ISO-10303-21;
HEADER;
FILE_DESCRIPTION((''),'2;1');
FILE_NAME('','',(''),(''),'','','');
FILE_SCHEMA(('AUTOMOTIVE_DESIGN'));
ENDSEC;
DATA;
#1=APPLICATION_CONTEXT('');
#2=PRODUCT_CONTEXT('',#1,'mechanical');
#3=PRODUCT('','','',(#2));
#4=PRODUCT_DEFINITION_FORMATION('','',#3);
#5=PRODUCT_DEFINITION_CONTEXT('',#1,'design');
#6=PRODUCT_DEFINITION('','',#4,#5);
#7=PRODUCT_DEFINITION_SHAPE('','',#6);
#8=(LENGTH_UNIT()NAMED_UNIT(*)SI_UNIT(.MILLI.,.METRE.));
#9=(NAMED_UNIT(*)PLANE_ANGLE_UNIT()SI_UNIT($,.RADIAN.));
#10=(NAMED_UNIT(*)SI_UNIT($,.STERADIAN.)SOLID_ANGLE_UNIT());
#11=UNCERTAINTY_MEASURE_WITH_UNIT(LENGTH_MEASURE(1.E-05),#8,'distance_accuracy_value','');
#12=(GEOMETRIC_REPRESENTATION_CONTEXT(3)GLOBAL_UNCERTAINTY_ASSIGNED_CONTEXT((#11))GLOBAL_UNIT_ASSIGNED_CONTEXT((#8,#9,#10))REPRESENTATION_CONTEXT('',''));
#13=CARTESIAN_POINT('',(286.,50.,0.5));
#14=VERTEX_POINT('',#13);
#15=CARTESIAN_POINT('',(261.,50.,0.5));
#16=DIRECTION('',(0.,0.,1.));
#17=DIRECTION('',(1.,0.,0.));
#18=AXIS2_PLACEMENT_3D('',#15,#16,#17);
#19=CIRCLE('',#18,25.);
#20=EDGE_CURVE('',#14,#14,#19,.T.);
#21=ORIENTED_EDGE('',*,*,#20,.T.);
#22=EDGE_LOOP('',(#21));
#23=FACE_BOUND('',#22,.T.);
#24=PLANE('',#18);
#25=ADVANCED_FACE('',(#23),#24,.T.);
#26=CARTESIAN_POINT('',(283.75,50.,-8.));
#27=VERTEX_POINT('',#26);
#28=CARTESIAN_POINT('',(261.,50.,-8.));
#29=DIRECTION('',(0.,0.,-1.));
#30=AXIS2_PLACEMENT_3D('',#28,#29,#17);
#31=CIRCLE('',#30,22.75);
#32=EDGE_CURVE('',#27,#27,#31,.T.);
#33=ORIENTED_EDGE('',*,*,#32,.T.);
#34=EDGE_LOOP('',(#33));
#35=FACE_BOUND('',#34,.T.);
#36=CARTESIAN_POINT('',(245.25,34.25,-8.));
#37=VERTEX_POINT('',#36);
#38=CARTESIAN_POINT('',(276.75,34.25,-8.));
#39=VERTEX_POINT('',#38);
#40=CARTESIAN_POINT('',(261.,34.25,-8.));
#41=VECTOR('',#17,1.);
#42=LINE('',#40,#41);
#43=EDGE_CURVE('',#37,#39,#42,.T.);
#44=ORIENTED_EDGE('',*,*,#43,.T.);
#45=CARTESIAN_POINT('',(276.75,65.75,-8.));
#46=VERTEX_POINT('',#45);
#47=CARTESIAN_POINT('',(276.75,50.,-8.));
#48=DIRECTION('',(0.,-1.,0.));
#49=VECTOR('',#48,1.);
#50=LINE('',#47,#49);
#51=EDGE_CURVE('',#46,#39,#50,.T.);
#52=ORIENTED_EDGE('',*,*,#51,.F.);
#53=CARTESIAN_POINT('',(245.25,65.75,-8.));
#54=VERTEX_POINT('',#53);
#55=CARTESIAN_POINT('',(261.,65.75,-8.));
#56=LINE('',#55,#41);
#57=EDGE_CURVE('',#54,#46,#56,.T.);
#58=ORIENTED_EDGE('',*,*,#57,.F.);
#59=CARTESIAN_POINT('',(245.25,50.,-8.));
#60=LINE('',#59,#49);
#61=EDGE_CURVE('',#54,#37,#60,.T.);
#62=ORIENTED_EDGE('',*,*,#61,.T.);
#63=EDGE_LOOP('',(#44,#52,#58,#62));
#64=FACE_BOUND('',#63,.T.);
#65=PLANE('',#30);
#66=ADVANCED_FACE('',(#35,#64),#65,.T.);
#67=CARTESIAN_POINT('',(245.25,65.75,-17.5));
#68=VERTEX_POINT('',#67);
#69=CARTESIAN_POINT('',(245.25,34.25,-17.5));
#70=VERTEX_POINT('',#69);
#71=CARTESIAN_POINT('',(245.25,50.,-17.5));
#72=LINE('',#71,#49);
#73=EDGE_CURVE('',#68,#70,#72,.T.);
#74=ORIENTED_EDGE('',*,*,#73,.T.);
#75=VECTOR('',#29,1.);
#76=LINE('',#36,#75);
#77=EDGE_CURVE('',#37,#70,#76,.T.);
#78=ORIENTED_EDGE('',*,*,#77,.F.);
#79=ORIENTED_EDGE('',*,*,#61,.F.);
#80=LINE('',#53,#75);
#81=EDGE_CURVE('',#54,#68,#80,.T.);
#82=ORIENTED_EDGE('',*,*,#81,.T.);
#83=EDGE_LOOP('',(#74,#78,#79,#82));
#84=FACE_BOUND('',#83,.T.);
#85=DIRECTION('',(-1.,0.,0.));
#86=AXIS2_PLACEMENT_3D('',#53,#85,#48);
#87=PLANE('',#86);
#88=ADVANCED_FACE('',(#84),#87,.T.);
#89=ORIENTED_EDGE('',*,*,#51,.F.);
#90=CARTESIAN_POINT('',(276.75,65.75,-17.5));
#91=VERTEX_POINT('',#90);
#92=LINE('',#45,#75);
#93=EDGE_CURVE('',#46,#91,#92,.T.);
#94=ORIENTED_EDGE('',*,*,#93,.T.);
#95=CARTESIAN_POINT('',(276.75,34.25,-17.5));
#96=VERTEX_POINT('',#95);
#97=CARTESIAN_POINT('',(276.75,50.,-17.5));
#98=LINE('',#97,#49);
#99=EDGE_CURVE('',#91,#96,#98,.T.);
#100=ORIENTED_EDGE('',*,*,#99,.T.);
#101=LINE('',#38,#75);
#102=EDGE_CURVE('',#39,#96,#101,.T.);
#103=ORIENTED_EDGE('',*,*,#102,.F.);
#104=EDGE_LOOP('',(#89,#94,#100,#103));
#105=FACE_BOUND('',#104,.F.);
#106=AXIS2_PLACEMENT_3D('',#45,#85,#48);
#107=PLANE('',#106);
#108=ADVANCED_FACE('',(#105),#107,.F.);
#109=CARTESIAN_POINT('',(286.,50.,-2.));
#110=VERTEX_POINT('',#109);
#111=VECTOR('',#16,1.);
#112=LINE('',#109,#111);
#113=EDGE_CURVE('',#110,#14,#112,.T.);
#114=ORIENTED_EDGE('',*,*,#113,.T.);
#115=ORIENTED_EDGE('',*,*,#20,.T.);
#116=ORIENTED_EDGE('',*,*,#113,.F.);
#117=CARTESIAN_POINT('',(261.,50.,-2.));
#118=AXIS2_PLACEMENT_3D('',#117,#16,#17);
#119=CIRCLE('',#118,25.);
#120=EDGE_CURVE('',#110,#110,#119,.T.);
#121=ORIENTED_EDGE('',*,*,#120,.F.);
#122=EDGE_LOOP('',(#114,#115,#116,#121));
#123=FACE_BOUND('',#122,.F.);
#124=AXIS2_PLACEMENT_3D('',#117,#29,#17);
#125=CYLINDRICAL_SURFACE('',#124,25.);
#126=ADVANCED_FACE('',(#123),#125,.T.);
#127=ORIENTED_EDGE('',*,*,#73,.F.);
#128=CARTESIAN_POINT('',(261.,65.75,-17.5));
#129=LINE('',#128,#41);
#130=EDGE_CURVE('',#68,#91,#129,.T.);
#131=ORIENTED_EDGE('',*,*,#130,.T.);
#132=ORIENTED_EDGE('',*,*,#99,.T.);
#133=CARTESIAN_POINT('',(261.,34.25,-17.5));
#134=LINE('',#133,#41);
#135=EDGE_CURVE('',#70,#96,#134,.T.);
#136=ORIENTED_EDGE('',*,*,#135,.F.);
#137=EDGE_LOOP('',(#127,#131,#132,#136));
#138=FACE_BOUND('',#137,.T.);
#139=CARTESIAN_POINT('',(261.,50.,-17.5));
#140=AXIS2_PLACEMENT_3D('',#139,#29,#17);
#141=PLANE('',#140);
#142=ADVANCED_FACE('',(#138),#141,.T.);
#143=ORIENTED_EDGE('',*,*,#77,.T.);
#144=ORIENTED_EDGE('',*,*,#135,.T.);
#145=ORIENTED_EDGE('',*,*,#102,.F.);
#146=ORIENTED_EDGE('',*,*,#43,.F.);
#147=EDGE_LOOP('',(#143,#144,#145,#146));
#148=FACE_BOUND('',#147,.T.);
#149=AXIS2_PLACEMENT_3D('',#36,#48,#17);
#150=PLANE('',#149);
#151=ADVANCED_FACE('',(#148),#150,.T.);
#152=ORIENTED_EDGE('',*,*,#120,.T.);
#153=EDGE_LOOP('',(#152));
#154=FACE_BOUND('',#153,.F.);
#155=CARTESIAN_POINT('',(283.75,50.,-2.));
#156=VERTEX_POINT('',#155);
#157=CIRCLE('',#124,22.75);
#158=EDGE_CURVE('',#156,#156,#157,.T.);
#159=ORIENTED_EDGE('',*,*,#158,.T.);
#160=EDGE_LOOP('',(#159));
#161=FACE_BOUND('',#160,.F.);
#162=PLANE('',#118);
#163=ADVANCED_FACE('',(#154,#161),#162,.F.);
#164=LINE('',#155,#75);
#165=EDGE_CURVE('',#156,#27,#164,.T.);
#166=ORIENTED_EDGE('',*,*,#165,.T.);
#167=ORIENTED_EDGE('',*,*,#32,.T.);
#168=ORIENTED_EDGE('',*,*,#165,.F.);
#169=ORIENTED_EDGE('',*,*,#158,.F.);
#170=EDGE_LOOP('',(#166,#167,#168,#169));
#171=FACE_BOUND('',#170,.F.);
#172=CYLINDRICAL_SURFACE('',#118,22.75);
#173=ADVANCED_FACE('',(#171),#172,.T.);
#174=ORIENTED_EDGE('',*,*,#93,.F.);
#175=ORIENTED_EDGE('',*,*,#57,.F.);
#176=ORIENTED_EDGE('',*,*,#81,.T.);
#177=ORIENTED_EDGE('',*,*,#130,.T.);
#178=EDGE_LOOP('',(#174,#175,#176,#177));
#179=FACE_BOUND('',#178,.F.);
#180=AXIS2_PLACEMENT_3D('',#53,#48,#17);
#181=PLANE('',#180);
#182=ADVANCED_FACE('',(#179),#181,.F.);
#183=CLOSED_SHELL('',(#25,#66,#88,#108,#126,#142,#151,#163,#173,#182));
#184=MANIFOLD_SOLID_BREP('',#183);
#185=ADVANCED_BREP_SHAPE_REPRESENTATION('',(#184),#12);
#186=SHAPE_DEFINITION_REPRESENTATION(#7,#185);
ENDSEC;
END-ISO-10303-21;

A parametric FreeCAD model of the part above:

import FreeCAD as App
import Part
import Sketcher

V = App.Vector
Q = App.Units.Quantity


def add_polygon(sketch, points):
    """Adds a closed chain of lines whose ends are joined by coincident constraints."""
    first, n = sketch.GeometryCount, len(points)
    for a, b in zip(points, points[1:] + points[:1]):
        sketch.addGeometry(Part.LineSegment(App.Vector(*a, 0), App.Vector(*b, 0)), False)
    for i in range(n):
        sketch.addConstraint(Sketcher.Constraint("Coincident", first + i, 2, first + (i + 1) % n, 1))

doc = App.newDocument("Part")
body = doc.addObject("PartDesign::Body", "Body")

sketch1 = body.newObject("Sketcher::SketchObject", "Sketch")
sketch1.AttachmentSupport = (doc.getObject("XY_Plane"), [""])
sketch1.MapMode = "FlatFace"
sketch1.addGeometry(Part.Circle(V(0, 0, 0), V(0, 0, 1), 25), False)
sketch1.addConstraint([
    Sketcher.Constraint("Coincident", 0, 3, -1, 1),
    Sketcher.Constraint("Diameter", 0, Q("50 mm")),
])
pad1 = body.newObject("PartDesign::Pad", "Pad")
pad1.Profile = sketch1
pad1.Length = 2.5

sketch2 = body.newObject("Sketcher::SketchObject", "Sketch001")
sketch2.AttachmentSupport = (doc.getObject("XY_Plane"), [""])
sketch2.MapMode = "FlatFace"
sketch2.addGeometry(Part.Circle(V(0, 0, 0), V(0, 0, 1), 23), False)
sketch2.addConstraint([
    Sketcher.Constraint("Coincident", 0, 3, -1, 1),
    Sketcher.Constraint("Diameter", 0, Q("45.5 mm")),
])
pad2 = body.newObject("PartDesign::Pad", "Pad001")
pad2.Profile = sketch2
pad2.Length = 6
pad2.Reversed = True

sketch3 = body.newObject("Sketcher::SketchObject", "Sketch002")
sketch3.AttachmentSupport = (doc.getObject("XY_Plane"), [""])
sketch3.MapMode = "FlatFace"
sketch3.AttachmentOffset = App.Placement(V(0, 0, -6), App.Rotation())
add_polygon(sketch3, [(-16, -16), (-16, 16), (16, 16), (16, -16)])
sketch3.addConstraint([
    Sketcher.Constraint("Vertical", 0),
    Sketcher.Constraint("Horizontal", 1),
    Sketcher.Constraint("Vertical", 2),
    Sketcher.Constraint("Horizontal", 3),
    Sketcher.Constraint("Symmetric", 0, 2, 2, 2, -1, 1),
    Sketcher.Constraint("Equal", 3, 0),
    Sketcher.Constraint("DistanceX", 1, 1, 1, 2, Q("31.5 mm")),
])
pad3 = body.newObject("PartDesign::Pad", "Pad002")
pad3.Profile = sketch3
pad3.Length = 9.5
pad3.Reversed = True
body2 = doc.addObject("PartDesign::Body", "Body001")
doc.recompute()

body.Placement = App.Placement(V(261, 50, -2), App.Rotation(V(0, 0, 1), 0))
boolean = body2.newObject("PartDesign::Boolean", "Boolean")
boolean.Type = "Fuse"
boolean.addObjects([body])

doc.recompute()
